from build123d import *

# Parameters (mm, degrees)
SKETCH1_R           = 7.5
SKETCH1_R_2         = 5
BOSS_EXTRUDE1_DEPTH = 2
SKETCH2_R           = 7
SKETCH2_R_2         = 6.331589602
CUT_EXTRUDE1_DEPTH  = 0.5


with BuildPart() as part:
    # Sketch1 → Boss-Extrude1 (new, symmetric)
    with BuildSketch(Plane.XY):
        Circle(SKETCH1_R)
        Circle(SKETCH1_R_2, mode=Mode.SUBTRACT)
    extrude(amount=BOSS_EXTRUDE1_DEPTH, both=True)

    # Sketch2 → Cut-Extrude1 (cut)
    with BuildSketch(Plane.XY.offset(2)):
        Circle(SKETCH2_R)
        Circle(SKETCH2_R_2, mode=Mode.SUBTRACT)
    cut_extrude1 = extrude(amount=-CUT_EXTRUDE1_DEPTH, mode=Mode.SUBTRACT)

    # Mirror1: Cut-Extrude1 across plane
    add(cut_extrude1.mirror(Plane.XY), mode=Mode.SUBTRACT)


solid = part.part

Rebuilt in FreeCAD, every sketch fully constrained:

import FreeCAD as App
import Part
import Sketcher

V = App.Vector
Q = App.Units.Quantity

doc = App.newDocument("Part")
params = doc.addObject("Spreadsheet::Sheet", "Params")
for row, (alias, value) in enumerate([
    ("sketch1_diameter", "15 mm"),
    ("sketch1_diameter2", "10 mm"),
    ("pad1_length", "4 mm"),
    ("sketch2_diameter", "14 mm"),
    ("pocket1_length", "0.5 mm"),
], start=1):
    params.set(f"A{row}", alias)
    params.set(f"B{row}", "=" + value)
    params.setAlias(f"B{row}", alias)

body = doc.addObject("PartDesign::Body", "Body")

sketch1 = body.newObject("Sketcher::SketchObject", "Sketch")
sketch1.AttachmentSupport = (doc.getObject("XY_Plane"), [""])
sketch1.MapMode = "FlatFace"
sketch1.addGeometry(Part.Circle(V(0, 0, 0), V(0, 0, 1), 8), False)
sketch1.addGeometry(Part.Circle(V(0, 0, 0), V(0, 0, 1), 5), False)
sketch1.addConstraint(Sketcher.Constraint("Coincident", 0, 3, -1, 1))
sketch1.addConstraint(Sketcher.Constraint("Coincident", 1, 3, -1, 1))
sketch1.addConstraint(Sketcher.Constraint("Diameter", 0, Q("15 mm")))
sketch1.addConstraint(Sketcher.Constraint("Diameter", 1, Q("10 mm")))
sketch1.setExpression("Constraints[2]", "Params.sketch1_diameter")
sketch1.setExpression("Constraints[3]", "Params.sketch1_diameter2")
pad1 = body.newObject("PartDesign::Pad", "Pad")
pad1.Profile = sketch1
pad1.setExpression("Length", "Params.pad1_length")
pad1.Midplane = True

sketch2 = body.newObject("Sketcher::SketchObject", "Sketch001")
sketch2.AttachmentSupport = (doc.getObject("XY_Plane"), [""])
sketch2.MapMode = "FlatFace"
sketch2.AttachmentOffset = App.Placement(V(0, 0, 2), App.Rotation())
sketch2.addGeometry(Part.Circle(V(0, 0, 0), V(0, 0, 1), 7), False)
sketch2.addGeometry(Part.Circle(V(0, 0, 0), V(0, 0, 1), 6), False)
sketch2.addConstraint(Sketcher.Constraint("Coincident", 0, 3, -1, 1))
sketch2.addConstraint(Sketcher.Constraint("Coincident", 1, 3, -1, 1))
sketch2.addConstraint(Sketcher.Constraint("Diameter", 0, Q("14 mm")))
sketch2.addConstraint(Sketcher.Constraint("Diameter", 1, Q("12.663179 mm")))
sketch2.setExpression("Constraints[2]", "Params.sketch2_diameter")
pocket1 = body.newObject("PartDesign::Pocket", "Pocket")
pocket1.Profile = sketch2
pocket1.setExpression("Length", "Params.pocket1_length")
doc.recompute()

mirrored = body.newObject("PartDesign::Mirrored", "Mirrored")
mirrored.Originals = [pocket1]
mirrored.MirrorPlane = (doc.getObject("XY_Plane"), [""])
body.Tip = mirrored

doc.recompute()
